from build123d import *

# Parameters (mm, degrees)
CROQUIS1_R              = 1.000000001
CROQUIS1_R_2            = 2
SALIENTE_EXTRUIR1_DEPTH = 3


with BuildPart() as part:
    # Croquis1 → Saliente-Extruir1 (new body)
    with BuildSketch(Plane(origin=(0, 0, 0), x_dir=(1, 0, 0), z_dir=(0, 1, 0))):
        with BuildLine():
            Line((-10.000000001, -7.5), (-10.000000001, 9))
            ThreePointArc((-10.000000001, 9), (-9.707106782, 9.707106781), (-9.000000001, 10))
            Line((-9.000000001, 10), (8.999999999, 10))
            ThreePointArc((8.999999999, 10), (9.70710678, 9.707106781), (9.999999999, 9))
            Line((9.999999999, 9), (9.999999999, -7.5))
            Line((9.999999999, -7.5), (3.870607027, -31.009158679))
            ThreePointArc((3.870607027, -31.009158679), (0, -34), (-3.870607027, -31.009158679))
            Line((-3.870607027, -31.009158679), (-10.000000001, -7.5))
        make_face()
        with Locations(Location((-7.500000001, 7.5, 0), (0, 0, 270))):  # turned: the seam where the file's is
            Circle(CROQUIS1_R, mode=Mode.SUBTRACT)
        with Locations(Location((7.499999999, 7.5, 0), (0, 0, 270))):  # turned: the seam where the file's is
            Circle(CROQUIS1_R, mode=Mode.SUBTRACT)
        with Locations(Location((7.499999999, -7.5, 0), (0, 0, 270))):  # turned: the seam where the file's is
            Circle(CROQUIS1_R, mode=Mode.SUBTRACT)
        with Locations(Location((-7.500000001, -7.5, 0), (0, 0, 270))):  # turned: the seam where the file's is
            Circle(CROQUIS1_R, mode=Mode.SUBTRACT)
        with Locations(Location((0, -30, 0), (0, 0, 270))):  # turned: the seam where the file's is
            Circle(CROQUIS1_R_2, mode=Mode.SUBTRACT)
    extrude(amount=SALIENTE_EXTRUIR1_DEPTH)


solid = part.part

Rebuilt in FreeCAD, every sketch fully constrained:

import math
import FreeCAD as App
import Part
import Sketcher
Q = App.Units.Quantity

doc = App.newDocument("Part")
body = doc.addObject("PartDesign::Body", "Body")

# Sketch on XZ plane
sketch1 = body.newObject("Sketcher::SketchObject", "Sketch")
sketch1.AttachmentSupport = (doc.getObject("XZ_Plane"), [""])
sketch1.MapMode = "FlatFace"
sketch1.addGeometry([
    Part.LineSegment(App.Vector(-10, -9, 0), App.Vector(-10, 7.5, 0)),  # 0
    Part.LineSegment(App.Vector(-10, 7.5, 0), App.Vector(-3.870607, 31.009159, 0)),  # 1
    Part.ArcOfCircle(Part.Circle(App.Vector(0, 30, 0), App.Vector(0, 0, 1), 4), math.radians(14.613044), math.radians(165.386956)),  # 2
    Part.LineSegment(App.Vector(3.870607, 31.009159, 0), App.Vector(10, 7.5, 0)),  # 3
    Part.LineSegment(App.Vector(10, 7.5, 0), App.Vector(10, -9, 0)),  # 4
    Part.ArcOfCircle(Part.Circle(App.Vector(9, -9, 0), App.Vector(0, 0, 1), 1), math.radians(-90), math.radians(0)),  # 5
    Part.LineSegment(App.Vector(9, -10, 0), App.Vector(-9, -10, 0)),  # 6
    Part.ArcOfCircle(Part.Circle(App.Vector(-9, -9, 0), App.Vector(0, 0, 1), 1), math.radians(-180), math.radians(-90)),  # 7
    Part.Circle(App.Vector(0, 30, 0), App.Vector(0, 0, 1), 2),  # 8
    Part.Circle(App.Vector(7.5, 7.5, 0), App.Vector(0, 0, 1), 1),  # 9
    Part.Circle(App.Vector(7.5, -7.5, 0), App.Vector(0, 0, 1), 1),  # 10
    Part.Circle(App.Vector(-7.5, 7.5, 0), App.Vector(0, 0, 1), 1),  # 11
    Part.Circle(App.Vector(-7.5, -7.5, 0), App.Vector(0, 0, 1), 1),  # 12
], False)
sketch1.addConstraint([
    Sketcher.Constraint("Coincident", 0, 2, 1, 1),
    Sketcher.Constraint("Tangent", 1, 2, 2, 2),
    Sketcher.Constraint("Tangent", 2, 1, 3, 1),
    Sketcher.Constraint("Coincident", 3, 2, 4, 1),
    Sketcher.Constraint("Tangent", 4, 2, 5, 2),
    Sketcher.Constraint("Tangent", 5, 1, 6, 1),
    Sketcher.Constraint("Tangent", 6, 2, 7, 2),
    Sketcher.Constraint("Tangent", 7, 1, 0, 1),
    Sketcher.Constraint("Vertical", 0),
    Sketcher.Constraint("Vertical", 4),
    Sketcher.Constraint("Horizontal", 6),
    Sketcher.Constraint("Coincident", 8, 3, 2, 3),
    Sketcher.Constraint("Equal", 5, 7),
    Sketcher.Constraint("Equal", 7, 9),
    Sketcher.Constraint("Equal", 9, 10),
    Sketcher.Constraint("Equal", 10, 11),
    Sketcher.Constraint("Equal", 11, 12),
    Sketcher.Constraint("Symmetric", 10, 3, 11, 3, -1, 1),
    Sketcher.Constraint("Symmetric", 9, 3, 12, 3, -1, 1),
    Sketcher.Constraint("Symmetric", 9, 3, 11, 3, -2),
    Sketcher.Constraint("Symmetric", 1, 2, 2, 1, -2),
    Sketcher.Constraint("Horizontal", 11, 3, 0, 2),
    Sketcher.Constraint("Horizontal", 0, 2, 3, 2),
    Sketcher.Constraint("Diameter", 8, Q("4 mm")),
    Sketcher.Constraint("Diameter", 9, Q("2 mm")),
    Sketcher.Constraint("Radius", 2, Q("4 mm")),
    Sketcher.Constraint("DistanceX", 6, 2, 6, 1, Q("18 mm")),
    Sketcher.Constraint("DistanceY", 0, 1, 0, 2, Q("16.5 mm")),
    Sketcher.Constraint("DistanceY", -1, 1, 2, 3, Q("30 mm")),
    Sketcher.Constraint("DistanceY", 5, 3, -1, 1, Q("9 mm")),
    Sketcher.Constraint("DistanceX", 11, 3, 9, 3, Q("15 mm")),
])
pad1 = body.newObject("PartDesign::Pad", "Pad")
pad1.Profile = sketch1
pad1.Length = 3
pad1.Reversed = True

doc.recompute()
